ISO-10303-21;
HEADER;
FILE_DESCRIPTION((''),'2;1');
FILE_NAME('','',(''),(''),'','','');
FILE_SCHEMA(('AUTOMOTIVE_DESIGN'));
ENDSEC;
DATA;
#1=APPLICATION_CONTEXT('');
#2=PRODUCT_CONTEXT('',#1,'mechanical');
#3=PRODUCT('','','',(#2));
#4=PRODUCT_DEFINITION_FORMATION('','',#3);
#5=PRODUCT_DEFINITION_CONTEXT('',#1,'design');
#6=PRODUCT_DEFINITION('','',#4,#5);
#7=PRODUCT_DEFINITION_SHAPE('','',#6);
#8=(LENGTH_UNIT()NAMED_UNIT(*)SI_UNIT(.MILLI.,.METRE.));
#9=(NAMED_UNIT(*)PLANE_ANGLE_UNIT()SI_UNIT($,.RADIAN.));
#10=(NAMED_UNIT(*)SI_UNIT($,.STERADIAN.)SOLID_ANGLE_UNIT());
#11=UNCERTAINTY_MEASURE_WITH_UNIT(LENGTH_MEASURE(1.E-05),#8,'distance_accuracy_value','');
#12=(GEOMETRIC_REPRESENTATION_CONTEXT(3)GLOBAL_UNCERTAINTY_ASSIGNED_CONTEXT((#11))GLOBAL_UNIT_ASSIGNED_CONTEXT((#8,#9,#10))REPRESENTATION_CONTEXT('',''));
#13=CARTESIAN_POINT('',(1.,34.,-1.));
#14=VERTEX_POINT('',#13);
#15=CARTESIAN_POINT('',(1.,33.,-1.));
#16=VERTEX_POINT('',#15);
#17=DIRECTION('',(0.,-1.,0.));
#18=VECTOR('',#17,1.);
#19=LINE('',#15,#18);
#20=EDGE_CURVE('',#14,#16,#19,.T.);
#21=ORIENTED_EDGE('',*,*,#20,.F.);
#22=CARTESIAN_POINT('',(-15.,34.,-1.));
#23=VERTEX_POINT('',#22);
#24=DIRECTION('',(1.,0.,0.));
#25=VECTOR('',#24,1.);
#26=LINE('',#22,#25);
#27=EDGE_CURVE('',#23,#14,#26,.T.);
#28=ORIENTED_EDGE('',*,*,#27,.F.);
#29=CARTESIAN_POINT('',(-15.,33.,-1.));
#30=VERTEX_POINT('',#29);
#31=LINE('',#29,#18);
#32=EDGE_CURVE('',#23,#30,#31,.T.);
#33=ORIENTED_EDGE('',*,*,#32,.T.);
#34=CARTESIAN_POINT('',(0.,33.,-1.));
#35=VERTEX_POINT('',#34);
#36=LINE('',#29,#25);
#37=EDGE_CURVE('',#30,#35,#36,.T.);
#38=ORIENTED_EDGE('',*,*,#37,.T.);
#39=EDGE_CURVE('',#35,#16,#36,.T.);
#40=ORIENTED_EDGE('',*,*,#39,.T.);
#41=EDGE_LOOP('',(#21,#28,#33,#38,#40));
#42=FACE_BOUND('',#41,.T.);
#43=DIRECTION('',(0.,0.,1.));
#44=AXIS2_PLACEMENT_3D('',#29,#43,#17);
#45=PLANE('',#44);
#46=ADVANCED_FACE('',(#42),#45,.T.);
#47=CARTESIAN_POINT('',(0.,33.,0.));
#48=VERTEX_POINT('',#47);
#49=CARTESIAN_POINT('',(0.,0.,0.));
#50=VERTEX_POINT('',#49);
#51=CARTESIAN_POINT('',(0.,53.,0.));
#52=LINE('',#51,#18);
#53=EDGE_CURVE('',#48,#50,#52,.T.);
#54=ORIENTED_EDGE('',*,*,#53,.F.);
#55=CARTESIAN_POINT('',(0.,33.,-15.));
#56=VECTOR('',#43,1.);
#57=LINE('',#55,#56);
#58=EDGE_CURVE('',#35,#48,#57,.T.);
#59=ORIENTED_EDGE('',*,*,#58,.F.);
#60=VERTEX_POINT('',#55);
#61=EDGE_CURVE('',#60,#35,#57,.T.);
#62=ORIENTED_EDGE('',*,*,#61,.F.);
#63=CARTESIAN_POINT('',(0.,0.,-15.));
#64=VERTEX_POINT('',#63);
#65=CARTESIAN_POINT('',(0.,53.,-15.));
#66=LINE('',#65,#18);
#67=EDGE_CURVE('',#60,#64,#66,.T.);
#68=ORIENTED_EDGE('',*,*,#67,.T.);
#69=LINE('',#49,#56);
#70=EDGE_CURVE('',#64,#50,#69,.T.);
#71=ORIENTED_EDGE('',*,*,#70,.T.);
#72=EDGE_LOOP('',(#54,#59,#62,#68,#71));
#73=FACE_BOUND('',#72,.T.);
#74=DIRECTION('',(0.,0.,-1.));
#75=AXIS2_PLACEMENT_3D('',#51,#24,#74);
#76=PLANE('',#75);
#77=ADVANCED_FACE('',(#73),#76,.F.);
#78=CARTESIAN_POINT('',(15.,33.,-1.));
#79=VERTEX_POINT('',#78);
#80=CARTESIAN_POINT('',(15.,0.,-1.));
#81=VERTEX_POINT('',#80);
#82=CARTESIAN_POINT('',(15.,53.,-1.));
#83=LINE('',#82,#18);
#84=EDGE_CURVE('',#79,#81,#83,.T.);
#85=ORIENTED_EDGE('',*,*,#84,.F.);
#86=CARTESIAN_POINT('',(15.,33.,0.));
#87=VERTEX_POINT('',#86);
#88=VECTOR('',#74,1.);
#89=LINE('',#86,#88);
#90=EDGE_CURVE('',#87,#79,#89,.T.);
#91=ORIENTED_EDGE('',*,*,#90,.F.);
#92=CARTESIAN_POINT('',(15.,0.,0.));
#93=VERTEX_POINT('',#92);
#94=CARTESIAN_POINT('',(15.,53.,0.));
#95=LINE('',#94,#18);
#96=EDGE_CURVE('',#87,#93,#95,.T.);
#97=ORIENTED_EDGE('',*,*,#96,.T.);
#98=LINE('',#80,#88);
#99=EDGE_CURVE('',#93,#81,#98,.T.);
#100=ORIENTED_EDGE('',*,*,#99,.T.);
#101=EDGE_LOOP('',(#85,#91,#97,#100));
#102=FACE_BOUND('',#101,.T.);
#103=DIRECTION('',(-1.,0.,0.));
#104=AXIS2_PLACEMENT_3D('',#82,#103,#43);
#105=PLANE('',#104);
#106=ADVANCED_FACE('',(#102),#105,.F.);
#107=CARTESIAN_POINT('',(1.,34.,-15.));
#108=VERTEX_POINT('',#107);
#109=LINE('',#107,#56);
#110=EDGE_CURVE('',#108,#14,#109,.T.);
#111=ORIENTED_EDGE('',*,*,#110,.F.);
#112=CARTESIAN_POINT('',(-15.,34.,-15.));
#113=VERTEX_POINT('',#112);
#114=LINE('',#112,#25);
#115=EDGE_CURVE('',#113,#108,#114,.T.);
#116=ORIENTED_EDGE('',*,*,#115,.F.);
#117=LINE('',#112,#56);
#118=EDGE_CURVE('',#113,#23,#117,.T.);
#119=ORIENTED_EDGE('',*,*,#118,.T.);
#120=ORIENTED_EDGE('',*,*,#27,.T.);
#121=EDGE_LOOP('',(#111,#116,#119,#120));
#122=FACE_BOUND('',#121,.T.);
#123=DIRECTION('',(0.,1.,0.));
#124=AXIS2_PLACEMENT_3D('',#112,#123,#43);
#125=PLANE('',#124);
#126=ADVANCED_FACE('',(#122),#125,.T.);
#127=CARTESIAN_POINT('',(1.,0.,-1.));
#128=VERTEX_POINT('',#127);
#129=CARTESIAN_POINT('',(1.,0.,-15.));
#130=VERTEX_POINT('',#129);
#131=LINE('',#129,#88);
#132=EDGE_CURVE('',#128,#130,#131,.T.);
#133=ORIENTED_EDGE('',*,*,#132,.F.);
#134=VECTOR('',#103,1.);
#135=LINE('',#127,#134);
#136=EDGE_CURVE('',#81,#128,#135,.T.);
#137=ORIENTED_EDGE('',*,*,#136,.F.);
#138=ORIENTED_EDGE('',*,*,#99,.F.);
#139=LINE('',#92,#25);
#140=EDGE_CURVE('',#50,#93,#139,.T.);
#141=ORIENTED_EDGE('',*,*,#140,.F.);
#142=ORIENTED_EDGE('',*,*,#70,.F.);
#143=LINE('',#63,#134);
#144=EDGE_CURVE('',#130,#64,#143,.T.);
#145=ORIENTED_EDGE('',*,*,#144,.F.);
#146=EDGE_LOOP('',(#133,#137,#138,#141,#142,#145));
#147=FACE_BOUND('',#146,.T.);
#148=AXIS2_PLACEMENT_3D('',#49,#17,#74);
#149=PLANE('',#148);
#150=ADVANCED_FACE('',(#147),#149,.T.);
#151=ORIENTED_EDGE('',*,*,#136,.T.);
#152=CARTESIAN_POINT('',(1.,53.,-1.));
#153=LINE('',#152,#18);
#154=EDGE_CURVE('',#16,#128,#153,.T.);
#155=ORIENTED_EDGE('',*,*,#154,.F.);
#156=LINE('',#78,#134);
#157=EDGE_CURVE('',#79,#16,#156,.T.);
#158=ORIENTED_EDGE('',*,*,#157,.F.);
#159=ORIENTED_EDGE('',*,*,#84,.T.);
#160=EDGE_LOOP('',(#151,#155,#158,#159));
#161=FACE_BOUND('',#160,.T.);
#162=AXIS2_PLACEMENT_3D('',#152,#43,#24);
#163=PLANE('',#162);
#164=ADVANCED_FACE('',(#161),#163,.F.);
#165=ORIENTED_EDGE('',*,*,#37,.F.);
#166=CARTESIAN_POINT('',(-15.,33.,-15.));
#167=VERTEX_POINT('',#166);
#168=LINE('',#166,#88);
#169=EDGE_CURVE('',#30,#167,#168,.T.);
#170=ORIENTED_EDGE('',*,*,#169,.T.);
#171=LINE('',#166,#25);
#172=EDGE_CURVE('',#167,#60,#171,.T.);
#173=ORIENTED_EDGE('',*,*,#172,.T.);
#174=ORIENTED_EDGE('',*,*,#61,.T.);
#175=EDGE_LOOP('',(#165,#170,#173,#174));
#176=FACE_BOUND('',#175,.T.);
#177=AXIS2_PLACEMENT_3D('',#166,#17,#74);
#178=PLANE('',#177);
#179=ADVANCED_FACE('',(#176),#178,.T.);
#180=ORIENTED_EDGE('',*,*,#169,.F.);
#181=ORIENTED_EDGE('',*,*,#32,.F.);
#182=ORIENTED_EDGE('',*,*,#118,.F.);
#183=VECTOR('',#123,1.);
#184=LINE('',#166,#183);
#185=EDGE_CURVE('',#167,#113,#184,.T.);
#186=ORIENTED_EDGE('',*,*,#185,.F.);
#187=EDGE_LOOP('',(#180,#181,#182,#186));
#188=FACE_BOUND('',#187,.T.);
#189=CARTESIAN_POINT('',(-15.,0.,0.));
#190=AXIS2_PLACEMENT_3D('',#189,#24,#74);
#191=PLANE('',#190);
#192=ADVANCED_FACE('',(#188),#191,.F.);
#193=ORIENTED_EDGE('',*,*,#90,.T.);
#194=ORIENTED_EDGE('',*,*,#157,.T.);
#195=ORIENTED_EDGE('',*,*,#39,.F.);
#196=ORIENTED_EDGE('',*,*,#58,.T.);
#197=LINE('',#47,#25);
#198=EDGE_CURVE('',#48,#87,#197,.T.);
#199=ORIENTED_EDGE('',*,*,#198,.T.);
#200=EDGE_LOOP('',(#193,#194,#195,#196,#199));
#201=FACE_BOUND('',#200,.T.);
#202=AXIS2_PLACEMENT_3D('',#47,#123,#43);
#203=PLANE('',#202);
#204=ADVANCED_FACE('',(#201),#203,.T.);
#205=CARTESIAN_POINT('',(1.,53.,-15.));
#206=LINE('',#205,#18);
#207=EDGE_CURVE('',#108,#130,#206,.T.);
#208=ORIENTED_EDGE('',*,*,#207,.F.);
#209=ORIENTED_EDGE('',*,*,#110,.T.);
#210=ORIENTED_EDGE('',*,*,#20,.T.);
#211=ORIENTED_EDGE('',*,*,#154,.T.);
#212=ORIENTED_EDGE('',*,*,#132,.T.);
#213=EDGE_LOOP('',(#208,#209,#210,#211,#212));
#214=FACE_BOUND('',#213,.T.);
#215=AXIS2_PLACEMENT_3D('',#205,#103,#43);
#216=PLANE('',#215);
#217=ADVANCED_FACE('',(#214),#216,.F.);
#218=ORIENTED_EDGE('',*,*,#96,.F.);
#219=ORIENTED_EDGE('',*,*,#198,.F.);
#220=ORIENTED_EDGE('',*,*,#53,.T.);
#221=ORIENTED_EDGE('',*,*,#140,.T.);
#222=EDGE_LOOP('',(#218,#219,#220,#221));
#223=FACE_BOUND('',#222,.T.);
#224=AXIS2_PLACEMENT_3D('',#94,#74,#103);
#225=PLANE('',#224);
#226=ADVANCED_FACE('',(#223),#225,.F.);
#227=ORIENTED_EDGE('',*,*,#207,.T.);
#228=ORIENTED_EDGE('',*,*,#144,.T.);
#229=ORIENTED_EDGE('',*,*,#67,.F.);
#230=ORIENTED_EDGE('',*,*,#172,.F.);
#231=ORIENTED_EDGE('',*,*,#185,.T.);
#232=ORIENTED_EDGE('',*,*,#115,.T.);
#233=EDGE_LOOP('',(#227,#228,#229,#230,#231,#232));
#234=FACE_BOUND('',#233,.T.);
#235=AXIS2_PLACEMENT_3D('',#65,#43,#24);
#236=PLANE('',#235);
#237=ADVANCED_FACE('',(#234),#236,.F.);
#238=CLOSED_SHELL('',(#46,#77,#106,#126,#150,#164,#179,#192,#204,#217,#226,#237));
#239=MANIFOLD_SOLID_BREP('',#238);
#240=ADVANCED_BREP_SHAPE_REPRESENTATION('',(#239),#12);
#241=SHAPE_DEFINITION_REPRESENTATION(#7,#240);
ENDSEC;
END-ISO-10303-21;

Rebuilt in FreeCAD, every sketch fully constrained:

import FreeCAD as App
import Part
import Sketcher
Q = App.Units.Quantity

doc = App.newDocument("Part")
body = doc.addObject("PartDesign::Body", "Body")

# Sketch on XZ plane
sketch1 = body.newObject("Sketcher::SketchObject", "Sketch")
sketch1.AttachmentSupport = (doc.getObject("XZ_Plane"), [""])
sketch1.MapMode = "FlatFace"
sketch1.addGeometry(Part.LineSegment(App.Vector(0, -15, 0), App.Vector(0, 0, 0)), False)
sketch1.addGeometry(Part.LineSegment(App.Vector(0, 0, 0), App.Vector(15, 0, 0)), False)
sketch1.addGeometry(Part.LineSegment(App.Vector(15, 0, 0), App.Vector(15, -1, 0)), False)
sketch1.addGeometry(Part.LineSegment(App.Vector(15, -1, 0), App.Vector(1, -1, 0)), False)
sketch1.addGeometry(Part.LineSegment(App.Vector(1, -1, 0), App.Vector(1, -15, 0)), False)
sketch1.addGeometry(Part.LineSegment(App.Vector(1, -15, 0), App.Vector(0, -15, 0)), False)
sketch1.addConstraint(Sketcher.Constraint("Coincident", 0, 2, 1, 1))
sketch1.addConstraint(Sketcher.Constraint("Coincident", 1, 2, 2, 1))
sketch1.addConstraint(Sketcher.Constraint("Coincident", 2, 2, 3, 1))
sketch1.addConstraint(Sketcher.Constraint("Coincident", 3, 2, 4, 1))
sketch1.addConstraint(Sketcher.Constraint("Coincident", 4, 2, 5, 1))
sketch1.addConstraint(Sketcher.Constraint("Coincident", 5, 2, 0, 1))
sketch1.addConstraint(Sketcher.Constraint("Vertical", 0))
sketch1.addConstraint(Sketcher.Constraint("Horizontal", 1))
sketch1.addConstraint(Sketcher.Constraint("Vertical", 2))
sketch1.addConstraint(Sketcher.Constraint("Horizontal", 3))
sketch1.addConstraint(Sketcher.Constraint("Vertical", 4))
sketch1.addConstraint(Sketcher.Constraint("Horizontal", 5))
sketch1.addConstraint(Sketcher.Constraint("Coincident", 0, 2, -1, 1))
sketch1.addConstraint(Sketcher.Constraint("Equal", 1, 0))
sketch1.addConstraint(Sketcher.Constraint("Equal", 5, 2))
sketch1.addConstraint(Sketcher.Constraint("DistanceX", 1, 1, 1, 2, Q("15 mm")))
sketch1.addConstraint(Sketcher.Constraint("DistanceX", 3, 2, 3, 1, Q("14 mm")))
pad1 = body.newObject("PartDesign::Pad", "Pad")
pad1.Profile = sketch1
pad1.Length = 53
pad1.Reversed = True

# Sketch on XZ plane
sketch2 = body.newObject("Sketcher::SketchObject", "Sketch001")
sketch2.AttachmentSupport = (doc.getObject("XZ_Plane"), [""])
sketch2.MapMode = "FlatFace"
sketch2.AttachmentOffset = App.Placement(App.Vector(0, 0, -53), App.Rotation())
sketch2.addGeometry(Part.LineSegment(App.Vector(0, 0, 0), App.Vector(15, 0, 0)), False)
sketch2.addGeometry(Part.LineSegment(App.Vector(15, 0, 0), App.Vector(15, -1, 0)), False)
sketch2.addGeometry(Part.LineSegment(App.Vector(15, -1, 0), App.Vector(1, -1, 0)), False)
sketch2.addGeometry(Part.LineSegment(App.Vector(1, -1, 0), App.Vector(1, -15, 0)), False)
sketch2.addGeometry(Part.LineSegment(App.Vector(1, -15, 0), App.Vector(0, -15, 0)), False)
sketch2.addGeometry(Part.LineSegment(App.Vector(0, -15, 0), App.Vector(0, 0, 0)), False)
sketch2.addConstraint(Sketcher.Constraint("Coincident", 0, 2, 1, 1))
sketch2.addConstraint(Sketcher.Constraint("Coincident", 1, 2, 2, 1))
sketch2.addConstraint(Sketcher.Constraint("Coincident", 2, 2, 3, 1))
sketch2.addConstraint(Sketcher.Constraint("Coincident", 3, 2, 4, 1))
sketch2.addConstraint(Sketcher.Constraint("Coincident", 4, 2, 5, 1))
sketch2.addConstraint(Sketcher.Constraint("Coincident", 5, 2, 0, 1))
sketch2.addConstraint(Sketcher.Constraint("Horizontal", 0))
sketch2.addConstraint(Sketcher.Constraint("Vertical", 1))
sketch2.addConstraint(Sketcher.Constraint("Horizontal", 2))
sketch2.addConstraint(Sketcher.Constraint("Vertical", 3))
sketch2.addConstraint(Sketcher.Constraint("Horizontal", 4))
sketch2.addConstraint(Sketcher.Constraint("Vertical", 5))
sketch2.addConstraint(Sketcher.Constraint("Coincident", 5, 2, -1, 1))
sketch2.addConstraint(Sketcher.Constraint("Equal", 4, 1))
sketch2.addConstraint(Sketcher.Constraint("Equal", 2, 3))
sketch2.addConstraint(Sketcher.Constraint("DistanceX", 0, 1, 0, 2, Q("15 mm")))
sketch2.addConstraint(Sketcher.Constraint("DistanceX", 2, 2, 2, 1, Q("14 mm")))
pocket1 = body.newObject("PartDesign::Pocket", "Pocket")
pocket1.Profile = sketch2
pocket1.Length = 20
pocket1.Reversed = True

# Sketch on YZ plane
sketch3 = body.newObject("Sketcher::SketchObject", "Sketch002")
sketch3.AttachmentSupport = (doc.getObject("YZ_Plane"), [""])
sketch3.MapMode = "FlatFace"
sketch3.AttachmentOffset = App.Placement(App.Vector(0, 0, 1), App.Rotation())
sketch3.addGeometry(Part.LineSegment(App.Vector(34, -1, 0), App.Vector(33, -1, 0)), False)
sketch3.addGeometry(Part.LineSegment(App.Vector(33, -1, 0), App.Vector(33, -15, 0)), False)
sketch3.addGeometry(Part.LineSegment(App.Vector(33, -15, 0), App.Vector(34, -15, 0)), False)
sketch3.addGeometry(Part.LineSegment(App.Vector(34, -15, 0), App.Vector(34, -1, 0)), False)
sketch3.addConstraint(Sketcher.Constraint("Coincident", 0, 2, 1, 1))
sketch3.addConstraint(Sketcher.Constraint("Coincident", 1, 2, 2, 1))
sketch3.addConstraint(Sketcher.Constraint("Coincident", 2, 2, 3, 1))
sketch3.addConstraint(Sketcher.Constraint("Coincident", 3, 2, 0, 1))
sketch3.addConstraint(Sketcher.Constraint("Horizontal", 0))
sketch3.addConstraint(Sketcher.Constraint("Vertical", 1))
sketch3.addConstraint(Sketcher.Constraint("Horizontal", 2))
sketch3.addConstraint(Sketcher.Constraint("Vertical", 3))
sketch3.addConstraint(Sketcher.Constraint("DistanceX", 0, 2, 0, 1, Q("1 mm")))
sketch3.addConstraint(Sketcher.Constraint("DistanceY", 1, 2, 1, 1, Q("14 mm")))
sketch3.addConstraint(Sketcher.Constraint("DistanceX", -1, 1, 0, 2, Q("33 mm")))
sketch3.addConstraint(Sketcher.Constraint("DistanceY", 0, 2, -1, 1, Q("1 mm")))
pad2 = body.newObject("PartDesign::Pad", "Pad001")
pad2.Profile = sketch3
pad2.Length = 16
pad2.Reversed = True

doc.recompute()
